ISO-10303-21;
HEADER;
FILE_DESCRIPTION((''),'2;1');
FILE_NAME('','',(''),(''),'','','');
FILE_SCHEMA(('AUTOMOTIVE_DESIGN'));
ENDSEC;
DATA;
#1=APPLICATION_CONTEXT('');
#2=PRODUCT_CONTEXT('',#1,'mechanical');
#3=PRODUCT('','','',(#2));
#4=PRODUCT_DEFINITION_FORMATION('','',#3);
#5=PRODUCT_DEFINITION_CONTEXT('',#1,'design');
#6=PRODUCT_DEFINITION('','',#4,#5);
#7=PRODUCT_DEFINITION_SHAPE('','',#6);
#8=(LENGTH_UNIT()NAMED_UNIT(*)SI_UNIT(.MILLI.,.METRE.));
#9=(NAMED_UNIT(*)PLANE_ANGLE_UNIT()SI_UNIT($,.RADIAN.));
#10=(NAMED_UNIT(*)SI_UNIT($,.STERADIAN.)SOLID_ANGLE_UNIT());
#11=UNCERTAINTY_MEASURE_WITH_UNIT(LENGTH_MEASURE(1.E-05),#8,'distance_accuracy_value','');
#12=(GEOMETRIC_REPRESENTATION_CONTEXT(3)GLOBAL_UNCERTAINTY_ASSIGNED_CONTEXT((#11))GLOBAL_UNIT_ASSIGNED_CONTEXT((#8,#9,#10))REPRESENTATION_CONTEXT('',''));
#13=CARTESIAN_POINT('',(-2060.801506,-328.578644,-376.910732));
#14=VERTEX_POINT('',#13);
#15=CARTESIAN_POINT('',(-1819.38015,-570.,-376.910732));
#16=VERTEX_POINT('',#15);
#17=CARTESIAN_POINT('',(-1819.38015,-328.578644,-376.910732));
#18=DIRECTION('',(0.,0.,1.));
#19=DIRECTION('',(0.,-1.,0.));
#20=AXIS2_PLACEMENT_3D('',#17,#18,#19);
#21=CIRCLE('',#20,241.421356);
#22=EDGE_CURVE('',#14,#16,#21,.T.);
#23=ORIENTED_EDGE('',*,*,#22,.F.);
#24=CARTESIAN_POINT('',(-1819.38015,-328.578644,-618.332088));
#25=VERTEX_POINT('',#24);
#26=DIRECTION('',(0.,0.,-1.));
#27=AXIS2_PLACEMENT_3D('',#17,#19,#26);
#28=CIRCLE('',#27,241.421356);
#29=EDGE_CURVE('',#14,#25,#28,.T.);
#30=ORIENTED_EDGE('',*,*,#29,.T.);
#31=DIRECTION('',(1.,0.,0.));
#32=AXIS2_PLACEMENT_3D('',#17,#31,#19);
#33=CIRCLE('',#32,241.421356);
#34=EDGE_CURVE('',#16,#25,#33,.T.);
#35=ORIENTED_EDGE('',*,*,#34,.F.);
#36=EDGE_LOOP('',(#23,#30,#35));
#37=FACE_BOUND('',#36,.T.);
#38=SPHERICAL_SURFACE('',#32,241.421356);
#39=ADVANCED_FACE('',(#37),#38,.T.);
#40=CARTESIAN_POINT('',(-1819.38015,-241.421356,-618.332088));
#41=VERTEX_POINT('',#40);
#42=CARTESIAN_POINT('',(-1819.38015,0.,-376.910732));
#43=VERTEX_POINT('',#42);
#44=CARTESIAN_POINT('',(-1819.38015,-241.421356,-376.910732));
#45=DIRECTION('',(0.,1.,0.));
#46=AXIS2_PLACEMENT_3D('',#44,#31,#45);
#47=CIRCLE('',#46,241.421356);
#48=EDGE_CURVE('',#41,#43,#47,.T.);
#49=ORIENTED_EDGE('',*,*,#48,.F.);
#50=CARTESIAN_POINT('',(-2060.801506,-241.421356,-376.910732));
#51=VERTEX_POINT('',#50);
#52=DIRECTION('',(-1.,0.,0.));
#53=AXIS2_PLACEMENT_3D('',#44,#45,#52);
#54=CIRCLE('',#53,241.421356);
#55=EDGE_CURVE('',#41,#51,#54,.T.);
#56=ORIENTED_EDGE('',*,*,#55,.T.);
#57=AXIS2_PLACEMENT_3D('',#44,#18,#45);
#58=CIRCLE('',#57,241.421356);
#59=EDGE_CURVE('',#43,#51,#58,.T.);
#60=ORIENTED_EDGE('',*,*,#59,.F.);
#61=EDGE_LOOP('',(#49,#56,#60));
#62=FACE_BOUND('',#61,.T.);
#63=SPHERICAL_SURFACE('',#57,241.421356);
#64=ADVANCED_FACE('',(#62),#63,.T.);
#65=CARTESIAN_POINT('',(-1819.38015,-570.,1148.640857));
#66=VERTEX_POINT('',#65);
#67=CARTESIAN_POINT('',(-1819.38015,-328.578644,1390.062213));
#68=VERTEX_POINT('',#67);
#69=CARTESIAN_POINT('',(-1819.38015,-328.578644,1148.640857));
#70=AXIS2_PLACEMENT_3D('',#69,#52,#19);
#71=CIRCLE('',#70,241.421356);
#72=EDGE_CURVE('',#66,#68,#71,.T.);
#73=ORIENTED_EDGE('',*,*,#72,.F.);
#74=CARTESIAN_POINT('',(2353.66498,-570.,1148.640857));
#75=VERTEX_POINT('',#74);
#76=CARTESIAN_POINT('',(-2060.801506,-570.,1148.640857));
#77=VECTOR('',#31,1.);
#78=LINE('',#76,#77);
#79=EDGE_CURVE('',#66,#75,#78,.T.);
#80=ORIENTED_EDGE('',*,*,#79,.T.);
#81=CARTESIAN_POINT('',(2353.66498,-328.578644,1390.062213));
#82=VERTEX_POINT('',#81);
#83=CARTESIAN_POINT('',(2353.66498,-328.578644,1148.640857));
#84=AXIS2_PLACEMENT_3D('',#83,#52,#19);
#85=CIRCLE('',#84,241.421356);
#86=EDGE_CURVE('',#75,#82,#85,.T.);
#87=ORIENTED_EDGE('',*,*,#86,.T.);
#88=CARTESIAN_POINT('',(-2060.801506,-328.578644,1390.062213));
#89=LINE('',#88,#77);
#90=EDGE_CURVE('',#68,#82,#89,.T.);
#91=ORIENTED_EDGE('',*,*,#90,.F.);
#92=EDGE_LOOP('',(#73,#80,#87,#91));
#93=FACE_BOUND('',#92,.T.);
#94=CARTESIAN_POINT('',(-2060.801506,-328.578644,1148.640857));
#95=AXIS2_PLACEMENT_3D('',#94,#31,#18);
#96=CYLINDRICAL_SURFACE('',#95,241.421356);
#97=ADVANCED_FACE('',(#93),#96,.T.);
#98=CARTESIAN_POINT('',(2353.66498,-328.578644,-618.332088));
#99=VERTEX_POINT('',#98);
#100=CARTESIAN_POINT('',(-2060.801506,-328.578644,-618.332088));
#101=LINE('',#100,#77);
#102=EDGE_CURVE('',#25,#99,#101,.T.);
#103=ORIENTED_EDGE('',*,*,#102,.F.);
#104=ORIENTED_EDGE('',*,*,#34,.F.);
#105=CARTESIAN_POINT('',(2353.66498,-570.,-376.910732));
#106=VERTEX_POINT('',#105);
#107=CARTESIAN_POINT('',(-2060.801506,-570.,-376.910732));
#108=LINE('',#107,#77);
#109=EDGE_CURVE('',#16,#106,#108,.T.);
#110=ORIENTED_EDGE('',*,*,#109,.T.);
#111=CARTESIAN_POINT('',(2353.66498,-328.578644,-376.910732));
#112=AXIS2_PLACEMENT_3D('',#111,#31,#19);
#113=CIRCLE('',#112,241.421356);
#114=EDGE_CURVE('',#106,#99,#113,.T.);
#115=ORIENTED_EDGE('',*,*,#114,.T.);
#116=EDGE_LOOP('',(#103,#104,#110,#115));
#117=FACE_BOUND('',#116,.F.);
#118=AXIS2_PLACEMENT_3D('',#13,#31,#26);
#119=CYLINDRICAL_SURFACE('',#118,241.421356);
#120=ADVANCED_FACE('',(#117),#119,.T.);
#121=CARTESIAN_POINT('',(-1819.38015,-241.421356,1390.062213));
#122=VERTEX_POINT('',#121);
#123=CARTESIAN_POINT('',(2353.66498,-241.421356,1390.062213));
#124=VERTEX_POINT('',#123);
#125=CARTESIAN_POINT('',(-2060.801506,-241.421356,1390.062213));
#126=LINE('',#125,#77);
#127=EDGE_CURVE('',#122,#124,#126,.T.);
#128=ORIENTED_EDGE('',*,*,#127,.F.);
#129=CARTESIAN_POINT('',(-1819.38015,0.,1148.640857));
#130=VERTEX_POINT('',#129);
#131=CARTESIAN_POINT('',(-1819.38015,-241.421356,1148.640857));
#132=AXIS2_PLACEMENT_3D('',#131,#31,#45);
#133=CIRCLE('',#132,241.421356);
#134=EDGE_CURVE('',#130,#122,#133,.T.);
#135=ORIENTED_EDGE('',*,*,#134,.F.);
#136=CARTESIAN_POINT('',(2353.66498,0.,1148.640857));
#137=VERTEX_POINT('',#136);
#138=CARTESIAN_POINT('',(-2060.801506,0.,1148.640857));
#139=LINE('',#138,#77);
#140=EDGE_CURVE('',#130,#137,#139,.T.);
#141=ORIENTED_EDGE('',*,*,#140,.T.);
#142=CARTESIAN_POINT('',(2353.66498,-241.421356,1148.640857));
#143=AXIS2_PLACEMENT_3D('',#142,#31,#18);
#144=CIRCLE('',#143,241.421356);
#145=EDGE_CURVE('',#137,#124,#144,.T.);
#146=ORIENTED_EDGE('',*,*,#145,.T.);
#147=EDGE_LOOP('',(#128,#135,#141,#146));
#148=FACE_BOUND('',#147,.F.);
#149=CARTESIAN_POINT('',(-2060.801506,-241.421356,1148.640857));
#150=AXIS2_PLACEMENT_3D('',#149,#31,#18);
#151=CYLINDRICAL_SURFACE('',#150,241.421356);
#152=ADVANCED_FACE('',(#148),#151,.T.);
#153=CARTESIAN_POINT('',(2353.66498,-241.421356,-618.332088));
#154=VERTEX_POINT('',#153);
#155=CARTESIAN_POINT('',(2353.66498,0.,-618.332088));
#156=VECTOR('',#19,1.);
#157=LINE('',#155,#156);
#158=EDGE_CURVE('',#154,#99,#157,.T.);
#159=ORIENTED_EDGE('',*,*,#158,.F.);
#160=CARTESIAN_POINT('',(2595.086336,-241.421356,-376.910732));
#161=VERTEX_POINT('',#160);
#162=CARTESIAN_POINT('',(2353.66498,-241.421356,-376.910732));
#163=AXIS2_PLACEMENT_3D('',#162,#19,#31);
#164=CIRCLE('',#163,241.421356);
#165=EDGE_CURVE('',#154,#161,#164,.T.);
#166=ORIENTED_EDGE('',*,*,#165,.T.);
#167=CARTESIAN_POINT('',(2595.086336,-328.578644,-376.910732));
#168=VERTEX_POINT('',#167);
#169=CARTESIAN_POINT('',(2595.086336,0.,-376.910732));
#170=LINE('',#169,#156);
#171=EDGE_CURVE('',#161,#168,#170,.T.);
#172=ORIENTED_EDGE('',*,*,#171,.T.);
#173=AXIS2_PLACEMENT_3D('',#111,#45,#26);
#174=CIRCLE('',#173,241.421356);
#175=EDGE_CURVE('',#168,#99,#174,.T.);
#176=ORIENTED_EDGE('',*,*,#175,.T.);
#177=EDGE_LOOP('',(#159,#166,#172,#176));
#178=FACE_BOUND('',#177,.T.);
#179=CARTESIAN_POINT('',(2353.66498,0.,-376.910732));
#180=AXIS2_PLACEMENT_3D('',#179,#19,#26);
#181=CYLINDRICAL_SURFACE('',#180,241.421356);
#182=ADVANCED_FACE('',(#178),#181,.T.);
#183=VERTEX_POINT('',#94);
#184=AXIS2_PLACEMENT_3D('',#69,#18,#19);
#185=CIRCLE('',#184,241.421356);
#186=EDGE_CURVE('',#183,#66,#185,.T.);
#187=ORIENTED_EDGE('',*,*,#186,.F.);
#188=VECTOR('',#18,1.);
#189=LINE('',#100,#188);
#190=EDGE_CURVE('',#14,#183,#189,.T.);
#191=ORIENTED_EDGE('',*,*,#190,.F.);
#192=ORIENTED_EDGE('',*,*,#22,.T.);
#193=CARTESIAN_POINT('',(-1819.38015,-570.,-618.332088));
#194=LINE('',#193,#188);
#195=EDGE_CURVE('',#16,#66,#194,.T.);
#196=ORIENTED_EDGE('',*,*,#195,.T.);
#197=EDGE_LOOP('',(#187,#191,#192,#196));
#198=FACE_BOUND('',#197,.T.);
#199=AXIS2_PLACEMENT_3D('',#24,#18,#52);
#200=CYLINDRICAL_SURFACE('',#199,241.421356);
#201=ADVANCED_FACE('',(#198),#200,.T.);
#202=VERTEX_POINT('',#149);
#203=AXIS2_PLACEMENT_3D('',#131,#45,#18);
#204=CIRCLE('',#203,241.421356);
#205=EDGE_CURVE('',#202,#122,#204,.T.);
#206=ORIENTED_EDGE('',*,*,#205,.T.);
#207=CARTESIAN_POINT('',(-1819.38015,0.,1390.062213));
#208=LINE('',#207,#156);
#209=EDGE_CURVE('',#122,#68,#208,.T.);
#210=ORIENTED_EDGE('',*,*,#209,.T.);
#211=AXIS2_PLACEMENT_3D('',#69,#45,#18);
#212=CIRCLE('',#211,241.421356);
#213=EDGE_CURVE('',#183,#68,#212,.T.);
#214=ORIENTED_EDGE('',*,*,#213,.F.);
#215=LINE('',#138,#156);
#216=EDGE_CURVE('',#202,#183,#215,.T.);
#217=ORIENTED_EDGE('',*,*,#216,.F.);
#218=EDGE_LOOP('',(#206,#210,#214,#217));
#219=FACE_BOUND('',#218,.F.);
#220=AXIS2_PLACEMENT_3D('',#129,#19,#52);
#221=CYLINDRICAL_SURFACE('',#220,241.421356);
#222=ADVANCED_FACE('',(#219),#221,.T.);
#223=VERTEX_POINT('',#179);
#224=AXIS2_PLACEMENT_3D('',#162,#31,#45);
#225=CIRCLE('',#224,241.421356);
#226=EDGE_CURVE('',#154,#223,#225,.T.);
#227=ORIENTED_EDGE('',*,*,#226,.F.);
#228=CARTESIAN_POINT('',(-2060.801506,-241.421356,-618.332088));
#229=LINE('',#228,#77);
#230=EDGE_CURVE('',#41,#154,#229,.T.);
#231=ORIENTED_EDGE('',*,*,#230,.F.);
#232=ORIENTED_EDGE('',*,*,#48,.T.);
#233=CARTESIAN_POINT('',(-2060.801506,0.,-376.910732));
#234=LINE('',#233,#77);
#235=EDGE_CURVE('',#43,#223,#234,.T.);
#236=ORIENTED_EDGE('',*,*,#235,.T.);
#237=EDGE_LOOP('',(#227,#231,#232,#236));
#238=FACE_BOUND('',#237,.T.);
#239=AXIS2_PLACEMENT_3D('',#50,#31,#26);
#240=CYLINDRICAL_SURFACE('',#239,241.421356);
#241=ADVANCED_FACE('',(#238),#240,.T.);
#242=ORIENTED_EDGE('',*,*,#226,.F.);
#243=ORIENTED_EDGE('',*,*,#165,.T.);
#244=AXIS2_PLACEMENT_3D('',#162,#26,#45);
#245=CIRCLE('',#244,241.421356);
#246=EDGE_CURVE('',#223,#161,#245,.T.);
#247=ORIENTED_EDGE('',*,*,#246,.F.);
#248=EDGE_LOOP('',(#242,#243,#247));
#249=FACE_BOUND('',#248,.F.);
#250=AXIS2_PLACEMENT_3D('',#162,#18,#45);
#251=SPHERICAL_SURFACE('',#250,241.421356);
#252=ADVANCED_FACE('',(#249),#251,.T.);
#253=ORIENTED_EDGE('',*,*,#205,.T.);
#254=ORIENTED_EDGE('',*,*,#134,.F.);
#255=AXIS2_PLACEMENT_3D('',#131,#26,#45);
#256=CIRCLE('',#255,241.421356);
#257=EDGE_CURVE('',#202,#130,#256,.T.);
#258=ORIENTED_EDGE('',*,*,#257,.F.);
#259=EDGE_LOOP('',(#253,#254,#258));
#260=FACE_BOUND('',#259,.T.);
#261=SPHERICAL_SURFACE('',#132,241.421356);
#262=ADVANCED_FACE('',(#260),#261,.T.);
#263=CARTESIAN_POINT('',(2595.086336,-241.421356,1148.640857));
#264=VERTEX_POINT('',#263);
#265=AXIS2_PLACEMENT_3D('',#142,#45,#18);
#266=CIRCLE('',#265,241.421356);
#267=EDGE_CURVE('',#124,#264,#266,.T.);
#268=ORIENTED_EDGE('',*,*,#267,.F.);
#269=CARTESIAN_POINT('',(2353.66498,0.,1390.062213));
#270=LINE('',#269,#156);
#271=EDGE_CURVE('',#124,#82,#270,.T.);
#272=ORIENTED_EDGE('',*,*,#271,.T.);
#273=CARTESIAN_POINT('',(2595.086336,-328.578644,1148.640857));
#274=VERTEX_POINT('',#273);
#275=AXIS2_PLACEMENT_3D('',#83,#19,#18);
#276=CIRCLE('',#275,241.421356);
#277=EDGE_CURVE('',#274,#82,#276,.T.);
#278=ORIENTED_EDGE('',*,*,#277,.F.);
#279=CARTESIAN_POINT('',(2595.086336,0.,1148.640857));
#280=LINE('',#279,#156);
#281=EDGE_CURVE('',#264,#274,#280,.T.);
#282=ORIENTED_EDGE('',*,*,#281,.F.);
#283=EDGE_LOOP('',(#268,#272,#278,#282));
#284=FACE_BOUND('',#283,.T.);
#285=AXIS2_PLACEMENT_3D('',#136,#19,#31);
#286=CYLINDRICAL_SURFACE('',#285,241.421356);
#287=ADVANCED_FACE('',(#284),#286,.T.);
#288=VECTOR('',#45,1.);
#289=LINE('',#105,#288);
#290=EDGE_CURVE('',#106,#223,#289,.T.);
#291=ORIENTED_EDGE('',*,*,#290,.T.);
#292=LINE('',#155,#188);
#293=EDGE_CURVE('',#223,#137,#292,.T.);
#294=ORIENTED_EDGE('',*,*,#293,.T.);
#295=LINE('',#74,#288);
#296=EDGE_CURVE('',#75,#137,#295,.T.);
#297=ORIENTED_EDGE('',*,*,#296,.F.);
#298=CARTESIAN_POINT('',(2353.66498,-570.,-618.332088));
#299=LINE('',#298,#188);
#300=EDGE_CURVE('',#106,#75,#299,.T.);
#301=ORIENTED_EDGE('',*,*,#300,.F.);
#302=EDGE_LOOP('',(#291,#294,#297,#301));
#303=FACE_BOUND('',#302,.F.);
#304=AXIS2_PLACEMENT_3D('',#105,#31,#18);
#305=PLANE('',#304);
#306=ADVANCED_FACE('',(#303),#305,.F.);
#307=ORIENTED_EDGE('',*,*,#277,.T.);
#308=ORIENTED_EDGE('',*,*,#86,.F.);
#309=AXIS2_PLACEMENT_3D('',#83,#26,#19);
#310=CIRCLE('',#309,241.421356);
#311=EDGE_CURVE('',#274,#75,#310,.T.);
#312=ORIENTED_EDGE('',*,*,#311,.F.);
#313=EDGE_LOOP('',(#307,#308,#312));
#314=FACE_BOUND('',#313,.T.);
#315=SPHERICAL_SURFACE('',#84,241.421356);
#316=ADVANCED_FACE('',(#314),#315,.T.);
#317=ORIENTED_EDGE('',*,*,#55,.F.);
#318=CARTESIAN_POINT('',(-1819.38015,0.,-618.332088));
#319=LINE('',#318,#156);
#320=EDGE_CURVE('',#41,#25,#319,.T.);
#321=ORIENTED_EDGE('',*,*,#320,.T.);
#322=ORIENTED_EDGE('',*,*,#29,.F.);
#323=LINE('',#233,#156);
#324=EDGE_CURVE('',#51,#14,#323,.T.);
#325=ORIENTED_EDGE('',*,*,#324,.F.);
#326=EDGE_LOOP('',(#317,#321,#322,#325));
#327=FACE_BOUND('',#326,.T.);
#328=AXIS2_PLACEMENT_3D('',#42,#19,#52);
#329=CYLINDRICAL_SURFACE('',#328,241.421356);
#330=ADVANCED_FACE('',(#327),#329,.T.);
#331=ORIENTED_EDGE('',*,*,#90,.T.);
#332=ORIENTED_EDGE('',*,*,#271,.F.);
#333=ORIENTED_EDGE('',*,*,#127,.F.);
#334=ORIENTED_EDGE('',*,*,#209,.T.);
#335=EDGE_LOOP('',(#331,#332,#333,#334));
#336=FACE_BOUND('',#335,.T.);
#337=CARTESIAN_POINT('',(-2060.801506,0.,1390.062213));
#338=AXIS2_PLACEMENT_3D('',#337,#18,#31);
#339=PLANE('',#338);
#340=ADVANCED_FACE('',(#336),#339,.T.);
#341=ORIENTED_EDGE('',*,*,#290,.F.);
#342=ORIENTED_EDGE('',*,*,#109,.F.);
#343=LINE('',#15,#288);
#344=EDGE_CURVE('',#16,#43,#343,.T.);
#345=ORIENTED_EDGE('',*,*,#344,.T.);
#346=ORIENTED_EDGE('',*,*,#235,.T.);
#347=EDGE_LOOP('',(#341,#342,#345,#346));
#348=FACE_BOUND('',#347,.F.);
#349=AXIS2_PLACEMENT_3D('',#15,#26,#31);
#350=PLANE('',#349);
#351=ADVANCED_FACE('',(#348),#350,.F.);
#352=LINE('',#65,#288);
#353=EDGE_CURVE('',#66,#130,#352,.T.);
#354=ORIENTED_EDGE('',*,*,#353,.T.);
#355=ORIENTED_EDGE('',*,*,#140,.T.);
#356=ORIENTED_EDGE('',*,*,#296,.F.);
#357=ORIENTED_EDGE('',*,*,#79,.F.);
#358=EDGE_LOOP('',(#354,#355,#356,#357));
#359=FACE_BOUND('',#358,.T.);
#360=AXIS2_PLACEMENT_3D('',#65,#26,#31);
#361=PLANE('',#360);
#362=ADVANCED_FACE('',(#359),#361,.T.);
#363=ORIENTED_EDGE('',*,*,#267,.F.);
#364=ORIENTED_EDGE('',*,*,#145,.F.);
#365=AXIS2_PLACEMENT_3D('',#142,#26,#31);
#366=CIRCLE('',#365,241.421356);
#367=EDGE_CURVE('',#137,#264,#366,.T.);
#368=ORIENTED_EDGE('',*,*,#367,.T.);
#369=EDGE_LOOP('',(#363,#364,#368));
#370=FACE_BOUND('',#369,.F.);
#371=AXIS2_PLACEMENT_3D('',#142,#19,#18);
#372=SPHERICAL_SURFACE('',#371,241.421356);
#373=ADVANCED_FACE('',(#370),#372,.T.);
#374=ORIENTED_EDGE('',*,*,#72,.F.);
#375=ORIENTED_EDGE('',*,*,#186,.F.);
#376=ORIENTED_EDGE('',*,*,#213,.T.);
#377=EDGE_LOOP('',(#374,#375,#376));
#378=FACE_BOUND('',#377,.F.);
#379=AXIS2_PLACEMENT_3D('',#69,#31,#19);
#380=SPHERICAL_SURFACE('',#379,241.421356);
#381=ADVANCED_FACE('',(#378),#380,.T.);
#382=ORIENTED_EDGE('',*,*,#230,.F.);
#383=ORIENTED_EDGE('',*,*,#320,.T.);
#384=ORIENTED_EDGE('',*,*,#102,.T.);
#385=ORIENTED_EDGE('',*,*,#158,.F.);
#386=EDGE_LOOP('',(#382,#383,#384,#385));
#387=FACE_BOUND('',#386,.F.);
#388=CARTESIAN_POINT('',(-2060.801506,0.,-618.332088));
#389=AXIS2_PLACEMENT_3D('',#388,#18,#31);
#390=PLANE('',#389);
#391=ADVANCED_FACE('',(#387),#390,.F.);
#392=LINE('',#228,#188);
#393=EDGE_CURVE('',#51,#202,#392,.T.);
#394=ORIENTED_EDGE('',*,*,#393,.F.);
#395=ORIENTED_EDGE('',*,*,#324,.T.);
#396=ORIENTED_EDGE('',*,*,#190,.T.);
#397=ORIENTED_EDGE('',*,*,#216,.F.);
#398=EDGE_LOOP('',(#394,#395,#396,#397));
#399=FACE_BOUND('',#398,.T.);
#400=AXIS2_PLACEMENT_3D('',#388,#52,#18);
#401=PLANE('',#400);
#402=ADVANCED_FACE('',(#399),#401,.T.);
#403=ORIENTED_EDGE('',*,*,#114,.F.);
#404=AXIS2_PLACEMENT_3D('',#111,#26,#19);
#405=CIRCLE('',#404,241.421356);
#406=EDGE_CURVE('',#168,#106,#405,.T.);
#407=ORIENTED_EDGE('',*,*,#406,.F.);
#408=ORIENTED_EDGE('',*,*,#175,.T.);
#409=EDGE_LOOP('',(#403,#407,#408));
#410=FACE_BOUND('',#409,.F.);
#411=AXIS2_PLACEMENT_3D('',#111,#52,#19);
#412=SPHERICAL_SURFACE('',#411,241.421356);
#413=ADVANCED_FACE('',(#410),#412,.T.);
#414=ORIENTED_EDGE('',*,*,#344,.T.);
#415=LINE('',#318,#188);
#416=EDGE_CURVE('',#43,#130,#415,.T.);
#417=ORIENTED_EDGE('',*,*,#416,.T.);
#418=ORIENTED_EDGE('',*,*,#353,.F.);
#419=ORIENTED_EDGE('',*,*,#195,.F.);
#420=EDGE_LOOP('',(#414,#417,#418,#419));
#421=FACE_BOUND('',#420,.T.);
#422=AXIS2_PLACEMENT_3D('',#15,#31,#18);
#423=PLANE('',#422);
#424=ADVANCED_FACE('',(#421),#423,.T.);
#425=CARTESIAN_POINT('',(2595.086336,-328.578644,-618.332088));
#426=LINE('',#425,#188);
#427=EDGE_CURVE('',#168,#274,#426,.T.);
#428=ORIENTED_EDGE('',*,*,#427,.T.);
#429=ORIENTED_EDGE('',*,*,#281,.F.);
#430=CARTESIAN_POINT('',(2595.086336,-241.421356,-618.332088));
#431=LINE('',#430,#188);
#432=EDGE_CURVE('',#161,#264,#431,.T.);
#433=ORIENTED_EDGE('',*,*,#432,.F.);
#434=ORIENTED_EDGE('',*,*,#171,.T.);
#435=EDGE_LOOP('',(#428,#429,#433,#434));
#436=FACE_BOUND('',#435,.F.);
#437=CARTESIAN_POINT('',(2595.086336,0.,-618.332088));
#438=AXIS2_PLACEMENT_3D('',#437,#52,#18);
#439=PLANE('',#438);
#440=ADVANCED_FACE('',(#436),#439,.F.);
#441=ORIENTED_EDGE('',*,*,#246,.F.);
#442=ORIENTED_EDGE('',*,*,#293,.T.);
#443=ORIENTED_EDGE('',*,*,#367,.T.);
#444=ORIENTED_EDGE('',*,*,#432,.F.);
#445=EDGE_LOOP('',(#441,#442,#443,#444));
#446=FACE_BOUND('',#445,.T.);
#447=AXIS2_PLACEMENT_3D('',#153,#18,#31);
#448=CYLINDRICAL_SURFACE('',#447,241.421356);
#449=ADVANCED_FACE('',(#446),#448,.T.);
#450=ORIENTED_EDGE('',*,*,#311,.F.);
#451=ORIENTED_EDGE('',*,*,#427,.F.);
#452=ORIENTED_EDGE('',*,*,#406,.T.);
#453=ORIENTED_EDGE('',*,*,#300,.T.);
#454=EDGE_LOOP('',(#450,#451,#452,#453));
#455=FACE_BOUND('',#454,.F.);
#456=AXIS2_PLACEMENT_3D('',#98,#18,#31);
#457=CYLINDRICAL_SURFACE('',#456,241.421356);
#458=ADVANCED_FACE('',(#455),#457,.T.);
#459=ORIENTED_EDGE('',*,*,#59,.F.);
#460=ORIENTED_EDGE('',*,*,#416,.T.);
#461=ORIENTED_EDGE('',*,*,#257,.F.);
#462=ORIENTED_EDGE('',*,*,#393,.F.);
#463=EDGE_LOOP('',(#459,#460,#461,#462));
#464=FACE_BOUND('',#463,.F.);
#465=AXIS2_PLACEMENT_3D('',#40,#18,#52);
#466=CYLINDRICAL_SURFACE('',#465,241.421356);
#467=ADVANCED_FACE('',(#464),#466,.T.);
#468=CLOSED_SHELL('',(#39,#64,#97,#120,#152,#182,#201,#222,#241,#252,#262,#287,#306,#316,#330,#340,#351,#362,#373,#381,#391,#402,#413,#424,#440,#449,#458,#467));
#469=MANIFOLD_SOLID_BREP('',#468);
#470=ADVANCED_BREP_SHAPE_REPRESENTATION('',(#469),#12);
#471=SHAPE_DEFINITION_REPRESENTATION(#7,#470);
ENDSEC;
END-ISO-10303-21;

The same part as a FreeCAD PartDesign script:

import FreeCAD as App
import Part
import Sketcher

V = App.Vector
Q = App.Units.Quantity

doc = App.newDocument("Part")
body = doc.addObject("PartDesign::Body", "Body")

sketch1 = body.newObject("Sketcher::SketchObject", "Sketch")
sketch1.AttachmentSupport = (doc.getObject("XZ_Plane"), [""])
sketch1.MapMode = "FlatFace"
sketch1.addGeometry(Part.LineSegment(V(-2061, 1390, 0), V(-2061, -618, 0)), False)
sketch1.addGeometry(Part.LineSegment(V(-2061, -618, 0), V(2595, -618, 0)), False)
sketch1.addGeometry(Part.LineSegment(V(2595, -618, 0), V(2595, 1390, 0)), False)
sketch1.addGeometry(Part.LineSegment(V(2595, 1390, 0), V(-2061, 1390, 0)), False)
sketch1.addConstraint(Sketcher.Constraint("Coincident", 0, 2, 1, 1))
sketch1.addConstraint(Sketcher.Constraint("Coincident", 1, 2, 2, 1))
sketch1.addConstraint(Sketcher.Constraint("Coincident", 2, 2, 3, 1))
sketch1.addConstraint(Sketcher.Constraint("Coincident", 3, 2, 0, 1))
sketch1.addConstraint(Sketcher.Constraint("Vertical", 0))
sketch1.addConstraint(Sketcher.Constraint("Horizontal", 1))
sketch1.addConstraint(Sketcher.Constraint("Vertical", 2))
sketch1.addConstraint(Sketcher.Constraint("Horizontal", 3))
sketch1.addConstraint(Sketcher.Constraint("DistanceY", 0, 2, 0, 1, Q("2008.394301 mm")))
sketch1.addConstraint(Sketcher.Constraint("DistanceX", 1, 1, 1, 2, Q("4655.887842 mm")))
sketch1.addConstraint(Sketcher.Constraint("DistanceX", 0, 2, -1, 1, Q("2060.801506 mm")))
sketch1.addConstraint(Sketcher.Constraint("DistanceY", 0, 2, -1, 1, Q("618.332088 mm")))
pad1 = body.newObject("PartDesign::Pad", "Pad")
pad1.Profile = sketch1
pad1.Length = 570
doc.recompute()

fillet = body.newObject("PartDesign::Fillet", "Fillet")
fillet.Base = (pad1, ["Edge1"])
fillet.UseAllEdges = True
fillet.Radius = 241.421356

sketch2 = body.newObject("Sketcher::SketchObject", "Sketch001")
sketch2.AttachmentSupport = (doc.getObject("XZ_Plane"), [""])
sketch2.MapMode = "FlatFace"
sketch2.AttachmentOffset = App.Placement(V(0, 0, 570), App.Rotation())
sketch2.addGeometry(Part.LineSegment(V(-1819, 1149, 0), V(-1819, -377, 0)), False)
sketch2.addGeometry(Part.LineSegment(V(-1819, -377, 0), V(2354, -377, 0)), False)
sketch2.addGeometry(Part.LineSegment(V(2354, -377, 0), V(2354, 1149, 0)), False)
sketch2.addGeometry(Part.LineSegment(V(2354, 1149, 0), V(-1819, 1149, 0)), False)
sketch2.addConstraint(Sketcher.Constraint("Coincident", 0, 2, 1, 1))
sketch2.addConstraint(Sketcher.Constraint("Coincident", 1, 2, 2, 1))
sketch2.addConstraint(Sketcher.Constraint("Coincident", 2, 2, 3, 1))
sketch2.addConstraint(Sketcher.Constraint("Coincident", 3, 2, 0, 1))
sketch2.addConstraint(Sketcher.Constraint("Vertical", 0))
sketch2.addConstraint(Sketcher.Constraint("Horizontal", 1))
sketch2.addConstraint(Sketcher.Constraint("Vertical", 2))
sketch2.addConstraint(Sketcher.Constraint("Horizontal", 3))
sketch2.addConstraint(Sketcher.Constraint("DistanceX", 1, 1, 1, 2, Q("4173.04513 mm")))
sketch2.addConstraint(Sketcher.Constraint("DistanceY", 0, 2, 0, 1, Q("1525.551588 mm")))
sketch2.addConstraint(Sketcher.Constraint("DistanceX", 0, 2, -1, 1, Q("1819.38015 mm")))
sketch2.addConstraint(Sketcher.Constraint("DistanceY", 0, 2, -1, 1, Q("376.910732 mm")))
pocket1 = body.newObject("PartDesign::Pocket", "Pocket")
pocket1.Profile = sketch2
pocket1.Length = 1630

doc.recompute()
